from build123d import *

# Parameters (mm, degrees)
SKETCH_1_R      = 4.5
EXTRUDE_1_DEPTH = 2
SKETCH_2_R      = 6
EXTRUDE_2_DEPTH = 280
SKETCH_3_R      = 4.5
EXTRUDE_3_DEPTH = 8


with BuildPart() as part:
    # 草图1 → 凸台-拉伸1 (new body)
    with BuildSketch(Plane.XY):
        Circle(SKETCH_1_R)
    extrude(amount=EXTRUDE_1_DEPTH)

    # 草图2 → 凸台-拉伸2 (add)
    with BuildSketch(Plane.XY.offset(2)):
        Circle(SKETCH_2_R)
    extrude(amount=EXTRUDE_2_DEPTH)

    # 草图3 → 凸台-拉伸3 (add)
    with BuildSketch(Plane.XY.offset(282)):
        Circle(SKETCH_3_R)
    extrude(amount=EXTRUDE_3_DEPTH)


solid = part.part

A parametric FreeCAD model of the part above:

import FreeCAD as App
import Part
import Sketcher
from FreeCAD import Vector

doc = App.newDocument("Part")
body = doc.addObject("PartDesign::Body", "Body")

sketch1 = doc.addObject("Sketcher::SketchObject", "Sketch")
body.addObject(sketch1)
sketch1.AttachmentSupport = (doc.XY_Plane, [""])
sketch1.MapMode = "FlatFace"
sketch1.addGeometry(Part.Circle(Vector(0, 0, 0), Vector(0, 0, 1), 4.5), False)
sketch1.addConstraint([
    Sketcher.Constraint("Coincident", 0, 3, -1, 1),
    Sketcher.Constraint("Diameter", 0, 9.0),
])
pad1 = doc.addObject("PartDesign::Pad", "Pad")
body.addObject(pad1)
pad1.Profile = sketch1
pad1.Length = 2

sketch2 = doc.addObject("Sketcher::SketchObject", "Sketch001")
body.addObject(sketch2)
sketch2.AttachmentSupport = (doc.XY_Plane, [""])
sketch2.MapMode = "FlatFace"
sketch2.AttachmentOffset = App.Placement(Vector(0, 0, 2), App.Rotation())
sketch2.addGeometry(Part.Circle(Vector(0, 0, 0), Vector(0, 0, 1), 6), False)
sketch2.addConstraint([
    Sketcher.Constraint("Coincident", 0, 3, -1, 1),
    Sketcher.Constraint("Diameter", 0, 12.0),
])
pad2 = doc.addObject("PartDesign::Pad", "Pad001")
body.addObject(pad2)
pad2.Profile = sketch2
pad2.Length = 280

sketch3 = doc.addObject("Sketcher::SketchObject", "Sketch002")
body.addObject(sketch3)
sketch3.AttachmentSupport = (doc.XY_Plane, [""])
sketch3.MapMode = "FlatFace"
sketch3.AttachmentOffset = App.Placement(Vector(0, 0, 282), App.Rotation())
sketch3.addGeometry(Part.Circle(Vector(0, 0, 0), Vector(0, 0, 1), 4.5), False)
sketch3.addConstraint([
    Sketcher.Constraint("Coincident", 0, 3, -1, 1),
    Sketcher.Constraint("Diameter", 0, 9.0),
])
pad3 = doc.addObject("PartDesign::Pad", "Pad002")
body.addObject(pad3)
pad3.Profile = sketch3
pad3.Length = 8

doc.recompute()
